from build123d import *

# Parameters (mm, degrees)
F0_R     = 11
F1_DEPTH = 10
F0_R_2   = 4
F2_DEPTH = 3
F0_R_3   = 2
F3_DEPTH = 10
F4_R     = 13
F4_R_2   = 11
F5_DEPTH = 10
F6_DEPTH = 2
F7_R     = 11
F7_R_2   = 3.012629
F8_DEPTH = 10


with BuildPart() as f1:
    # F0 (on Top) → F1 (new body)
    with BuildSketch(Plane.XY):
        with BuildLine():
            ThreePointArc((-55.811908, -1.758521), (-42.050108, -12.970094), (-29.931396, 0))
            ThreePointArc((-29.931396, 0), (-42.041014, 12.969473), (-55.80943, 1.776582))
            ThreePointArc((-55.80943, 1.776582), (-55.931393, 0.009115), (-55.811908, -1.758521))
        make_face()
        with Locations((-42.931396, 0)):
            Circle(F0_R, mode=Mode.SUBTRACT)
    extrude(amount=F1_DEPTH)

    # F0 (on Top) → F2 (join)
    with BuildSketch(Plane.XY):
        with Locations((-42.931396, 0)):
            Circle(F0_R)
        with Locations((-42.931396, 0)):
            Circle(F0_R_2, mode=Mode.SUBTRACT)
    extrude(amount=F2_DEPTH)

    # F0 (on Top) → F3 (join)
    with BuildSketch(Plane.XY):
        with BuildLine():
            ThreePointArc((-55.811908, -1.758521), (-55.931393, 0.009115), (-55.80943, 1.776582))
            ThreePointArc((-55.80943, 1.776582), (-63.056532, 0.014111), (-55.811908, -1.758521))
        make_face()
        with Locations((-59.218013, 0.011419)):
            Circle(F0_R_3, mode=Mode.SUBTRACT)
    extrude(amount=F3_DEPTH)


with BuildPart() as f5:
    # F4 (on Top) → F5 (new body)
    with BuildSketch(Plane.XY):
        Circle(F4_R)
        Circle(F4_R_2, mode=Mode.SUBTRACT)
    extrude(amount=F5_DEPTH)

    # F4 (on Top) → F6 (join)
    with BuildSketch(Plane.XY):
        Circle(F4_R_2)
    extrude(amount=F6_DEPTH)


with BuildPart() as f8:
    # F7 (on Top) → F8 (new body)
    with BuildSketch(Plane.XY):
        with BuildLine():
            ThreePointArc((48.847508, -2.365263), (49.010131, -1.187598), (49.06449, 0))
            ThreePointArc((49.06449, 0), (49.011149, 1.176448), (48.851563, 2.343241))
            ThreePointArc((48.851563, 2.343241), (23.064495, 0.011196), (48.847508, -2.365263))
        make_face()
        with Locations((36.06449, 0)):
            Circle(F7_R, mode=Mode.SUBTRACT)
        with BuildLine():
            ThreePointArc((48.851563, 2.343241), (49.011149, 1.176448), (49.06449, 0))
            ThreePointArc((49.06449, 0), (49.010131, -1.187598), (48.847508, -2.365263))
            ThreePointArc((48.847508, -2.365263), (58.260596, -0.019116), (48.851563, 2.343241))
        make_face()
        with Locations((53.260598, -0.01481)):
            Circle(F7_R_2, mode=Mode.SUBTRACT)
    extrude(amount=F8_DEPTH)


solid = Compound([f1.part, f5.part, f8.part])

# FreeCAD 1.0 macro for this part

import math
import FreeCAD as App
import Part
import Sketcher

V = App.Vector

doc = App.newDocument("Part")
body = doc.addObject("PartDesign::Body", "Body")

# Sketch on XY plane
sketch1 = doc.addObject("Sketcher::SketchObject", "Sketch")
body.addObject(sketch1)
sketch1.AttachmentSupport = (doc.XY_Plane, [""])
sketch1.MapMode = "FlatFace"
sketch1.addGeometry(Part.ArcOfCircle(Part.Circle(V(-42.931396, -0.000001, 0), V(0, 0, 1), 13), math.radians(-172.22572), math.radians(0.000002)), False)
sketch1.addGeometry(Part.ArcOfCircle(Part.Circle(V(-42.931396, 0, 0), V(0, 0, 1), 13), math.radians(-0.000002), math.radians(172.145372)), False)
sketch1.addGeometry(Part.ArcOfCircle(Part.Circle(V(-42.93144, 0.000003, 0), V(0, 0, 1), 12.999956), math.radians(172.145355), math.radians(187.77432)), False)
sketch1.addGeometry(Part.Circle(V(-42.931396, 0, 0), V(0, 0, 1), 11), False)
sketch1.addConstraint(Sketcher.Constraint("Coincident", 0, 2, 1, 1))
sketch1.addConstraint(Sketcher.Constraint("Coincident", 1, 2, 2, 1))
sketch1.addConstraint(Sketcher.Constraint("Coincident", 2, 2, 0, 1))
sketch1.addConstraint(Sketcher.Constraint("Coincident", 1, 3, 0, 3))
sketch1.addConstraint(Sketcher.Constraint("Coincident", 3, 3, 0, 3))
sketch1.addConstraint(Sketcher.Constraint("PointOnObject", 0, 3, -1))
sketch1.addConstraint(Sketcher.Constraint("PointOnObject", 0, 2, -1))
sketch1.addConstraint(Sketcher.Constraint("Diameter", 3, 22.0))
sketch1.addConstraint(Sketcher.Constraint("Radius", 0, 13.0))
sketch1.addConstraint(Sketcher.Constraint("Radius", 2, 12.999956))
sketch1.addConstraint(Sketcher.Constraint("DistanceX", 2, 3, -1, 1, 42.93144))
sketch1.addConstraint(Sketcher.Constraint("DistanceX", 1, 2, -1, 1, 55.80943))
sketch1.addConstraint(Sketcher.Constraint("DistanceX", 2, 2, -1, 1, 55.811908))
pad1 = doc.addObject("PartDesign::Pad", "Pad")
body.addObject(pad1)
pad1.Profile = sketch1
pad1.Length = 10

# Sketch on XY plane
sketch2 = doc.addObject("Sketcher::SketchObject", "Sketch001")
body.addObject(sketch2)
sketch2.AttachmentSupport = (doc.XY_Plane, [""])
sketch2.MapMode = "FlatFace"
sketch2.addGeometry(Part.Circle(V(-42.9, 0, 0), V(0, 0, 1), 11), False)
sketch2.addGeometry(Part.Circle(V(-42.9, 0, 0), V(0, 0, 1), 4), False)
sketch2.addConstraint(Sketcher.Constraint("Coincident", 1, 3, 0, 3))
sketch2.addConstraint(Sketcher.Constraint("PointOnObject", 0, 3, -1))
sketch2.addConstraint(Sketcher.Constraint("Diameter", 0, 22.0))
sketch2.addConstraint(Sketcher.Constraint("Diameter", 1, 8.0))
sketch2.addConstraint(Sketcher.Constraint("DistanceX", 0, 3, -1, 1, 42.931396))
pad2 = doc.addObject("PartDesign::Pad", "Pad001")
body.addObject(pad2)
pad2.Profile = sketch2
pad2.Length = 3

# Sketch on XY plane
sketch3 = doc.addObject("Sketcher::SketchObject", "Sketch002")
body.addObject(sketch3)
sketch3.AttachmentSupport = (doc.XY_Plane, [""])
sketch3.MapMode = "FlatFace"
sketch3.addGeometry(Part.ArcOfCircle(Part.Circle(V(-42.9, 0, 0), V(0, 0, 1), 13), math.radians(172.15), math.radians(187.77)), False)
sketch3.addGeometry(Part.ArcOfCircle(Part.Circle(V(-59.2, 0, 0), V(0, 0, 1), 3.8), math.radians(27), math.radians(333)), False)
sketch3.addGeometry(Part.Circle(V(-59.2, 0, 0), V(0, 0, 1), 2), False)
sketch3.addConstraint(Sketcher.Constraint("Coincident", 0, 1, 1, 1))
sketch3.addConstraint(Sketcher.Constraint("Coincident", 1, 2, 0, 2))
sketch3.addConstraint(Sketcher.Constraint("Coincident", 2, 3, 1, 3))
sketch3.addConstraint(Sketcher.Constraint("Diameter", 2, 4.0))
sketch3.addConstraint(Sketcher.Constraint("Radius", 1, 3.83852))
sketch3.addConstraint(Sketcher.Constraint("Radius", 0, 12.999956))
sketch3.addConstraint(Sketcher.Constraint("DistanceX", 0, 3, -1, 1, 42.93144))
sketch3.addConstraint(Sketcher.Constraint("DistanceY", -1, 1, 1, 3, 0.011419))
sketch3.addConstraint(Sketcher.Constraint("DistanceX", 0, 1, -1, 1, 55.80943))
sketch3.addConstraint(Sketcher.Constraint("DistanceX", 1, 2, -1, 1, 55.811908))
pad3 = doc.addObject("PartDesign::Pad", "Pad002")
body.addObject(pad3)
pad3.Profile = sketch3
pad3.Length = 10
body2 = doc.addObject("PartDesign::Body", "Body001")

# Sketch on XY plane
sketch4 = doc.addObject("Sketcher::SketchObject", "Sketch003")
body2.addObject(sketch4)
sketch4.AttachmentSupport = (doc.getObject("XY_Plane001"), [""])
sketch4.MapMode = "FlatFace"
sketch4.addGeometry(Part.Circle(V(0, 0, 0), V(0, 0, 1), 13), False)
sketch4.addGeometry(Part.Circle(V(0, 0, 0), V(0, 0, 1), 11), False)
sketch4.addConstraint(Sketcher.Constraint("Coincident", 0, 3, -1, 1))
sketch4.addConstraint(Sketcher.Constraint("Coincident", 1, 3, -1, 1))
sketch4.addConstraint(Sketcher.Constraint("Diameter", 0, 26.0))
sketch4.addConstraint(Sketcher.Constraint("Diameter", 1, 22.0))
pad4 = doc.addObject("PartDesign::Pad", "Pad003")
body2.addObject(pad4)
pad4.Profile = sketch4
pad4.Length = 10

# Sketch on XY plane
sketch5 = doc.addObject("Sketcher::SketchObject", "Sketch004")
body2.addObject(sketch5)
sketch5.AttachmentSupport = (doc.getObject("XY_Plane001"), [""])
sketch5.MapMode = "FlatFace"
sketch5.addGeometry(Part.Circle(V(0, 0, 0), V(0, 0, 1), 11), False)
sketch5.addConstraint(Sketcher.Constraint("Coincident", 0, 3, -1, 1))
sketch5.addConstraint(Sketcher.Constraint("Diameter", 0, 22.0))
pad5 = doc.addObject("PartDesign::Pad", "Pad004")
body2.addObject(pad5)
pad5.Profile = sketch5
pad5.Length = 2
body3 = doc.addObject("PartDesign::Body", "Body002")

# Sketch on XY plane
sketch6 = doc.addObject("Sketcher::SketchObject", "Sketch005")
body3.addObject(sketch6)
sketch6.AttachmentSupport = (doc.getObject("XY_Plane002"), [""])
sketch6.MapMode = "FlatFace"
sketch6.addGeometry(Part.ArcOfCircle(Part.Circle(V(36.1, 0, 0), V(0, 0, 1), 13), math.radians(10), math.radians(350)), False)
sketch6.addGeometry(Part.ArcOfCircle(Part.Circle(V(53.3, 0, 0), V(0, 0, 1), 5), math.radians(-152), math.radians(152)), False)
sketch6.addGeometry(Part.Circle(V(53.3, 0, 0), V(0, 0, 1), 3), False)
sketch6.addGeometry(Part.Circle(V(36.1, 0, 0), V(0, 0, 1), 11), False)
sketch6.addConstraint(Sketcher.Constraint("Coincident", 0, 1, 1, 2))
sketch6.addConstraint(Sketcher.Constraint("Coincident", 1, 1, 0, 2))
sketch6.addConstraint(Sketcher.Constraint("Coincident", 2, 3, 1, 3))
sketch6.addConstraint(Sketcher.Constraint("Coincident", 3, 3, 0, 3))
sketch6.addConstraint(Sketcher.Constraint("PointOnObject", 0, 3, -1))
sketch6.addConstraint(Sketcher.Constraint("Diameter", 3, 22.0))
sketch6.addConstraint(Sketcher.Constraint("Radius", 0, 13.0))
sketch6.addConstraint(Sketcher.Constraint("Radius", 1, 5.0))
sketch6.addConstraint(Sketcher.Constraint("Diameter", 2, 6.025258))
sketch6.addConstraint(Sketcher.Constraint("DistanceX", -1, 1, 1, 3, 53.260598))
sketch6.addConstraint(Sketcher.Constraint("DistanceX", -1, 1, 0, 3, 36.06449))
sketch6.addConstraint(Sketcher.Constraint("DistanceY", 1, 3, -1, 1, 0.01481))
pad6 = doc.addObject("PartDesign::Pad", "Pad005")
body3.addObject(pad6)
pad6.Profile = sketch6
pad6.Length = 10

doc.recompute()
